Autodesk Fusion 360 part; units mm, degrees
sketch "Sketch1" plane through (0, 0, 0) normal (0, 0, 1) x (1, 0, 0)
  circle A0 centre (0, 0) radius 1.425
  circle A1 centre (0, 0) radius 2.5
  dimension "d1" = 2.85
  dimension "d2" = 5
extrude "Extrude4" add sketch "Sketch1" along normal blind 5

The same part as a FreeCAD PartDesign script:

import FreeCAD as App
import Part
import Sketcher
from FreeCAD import Vector

doc = App.newDocument("Part")
params = doc.addObject("Spreadsheet::Sheet", "Params")
for row, (alias, value) in enumerate([
    ("sketch1_diameter", "5 mm"),
    ("sketch1_diameter2", "2.85 mm"),
    ("pad1_length", "5 mm"),
], start=1):
    params.set(f"A{row}", alias)
    params.set(f"B{row}", "=" + value)
    params.setAlias(f"B{row}", alias)

body = doc.addObject("PartDesign::Body", "Body")

sketch1 = body.newObject("Sketcher::SketchObject", "Sketch")
sketch1.AttachmentSupport = (doc.getObject("XY_Plane"), [""])
sketch1.MapMode = "FlatFace"
sketch1.addGeometry(Part.Circle(Vector(0, 0, 0), Vector(0, 0, 1), 2.5), False)
sketch1.addGeometry(Part.Circle(Vector(0, 0, 0), Vector(0, 0, 1), 1.4), False)
sketch1.addConstraint(Sketcher.Constraint("Coincident", 0, 3, -1, 1))
sketch1.addConstraint(Sketcher.Constraint("Coincident", 1, 3, -1, 1))
sketch1.addConstraint(Sketcher.Constraint("Diameter", 0, 5.0))
sketch1.addConstraint(Sketcher.Constraint("Diameter", 1, 2.85))
sketch1.setExpression("Constraints[2]", "Params.sketch1_diameter")
sketch1.setExpression("Constraints[3]", "Params.sketch1_diameter2")
pad1 = body.newObject("PartDesign::Pad", "Pad")
pad1.Profile = sketch1
pad1.setExpression("Length", "Params.pad1_length")

doc.recompute()
